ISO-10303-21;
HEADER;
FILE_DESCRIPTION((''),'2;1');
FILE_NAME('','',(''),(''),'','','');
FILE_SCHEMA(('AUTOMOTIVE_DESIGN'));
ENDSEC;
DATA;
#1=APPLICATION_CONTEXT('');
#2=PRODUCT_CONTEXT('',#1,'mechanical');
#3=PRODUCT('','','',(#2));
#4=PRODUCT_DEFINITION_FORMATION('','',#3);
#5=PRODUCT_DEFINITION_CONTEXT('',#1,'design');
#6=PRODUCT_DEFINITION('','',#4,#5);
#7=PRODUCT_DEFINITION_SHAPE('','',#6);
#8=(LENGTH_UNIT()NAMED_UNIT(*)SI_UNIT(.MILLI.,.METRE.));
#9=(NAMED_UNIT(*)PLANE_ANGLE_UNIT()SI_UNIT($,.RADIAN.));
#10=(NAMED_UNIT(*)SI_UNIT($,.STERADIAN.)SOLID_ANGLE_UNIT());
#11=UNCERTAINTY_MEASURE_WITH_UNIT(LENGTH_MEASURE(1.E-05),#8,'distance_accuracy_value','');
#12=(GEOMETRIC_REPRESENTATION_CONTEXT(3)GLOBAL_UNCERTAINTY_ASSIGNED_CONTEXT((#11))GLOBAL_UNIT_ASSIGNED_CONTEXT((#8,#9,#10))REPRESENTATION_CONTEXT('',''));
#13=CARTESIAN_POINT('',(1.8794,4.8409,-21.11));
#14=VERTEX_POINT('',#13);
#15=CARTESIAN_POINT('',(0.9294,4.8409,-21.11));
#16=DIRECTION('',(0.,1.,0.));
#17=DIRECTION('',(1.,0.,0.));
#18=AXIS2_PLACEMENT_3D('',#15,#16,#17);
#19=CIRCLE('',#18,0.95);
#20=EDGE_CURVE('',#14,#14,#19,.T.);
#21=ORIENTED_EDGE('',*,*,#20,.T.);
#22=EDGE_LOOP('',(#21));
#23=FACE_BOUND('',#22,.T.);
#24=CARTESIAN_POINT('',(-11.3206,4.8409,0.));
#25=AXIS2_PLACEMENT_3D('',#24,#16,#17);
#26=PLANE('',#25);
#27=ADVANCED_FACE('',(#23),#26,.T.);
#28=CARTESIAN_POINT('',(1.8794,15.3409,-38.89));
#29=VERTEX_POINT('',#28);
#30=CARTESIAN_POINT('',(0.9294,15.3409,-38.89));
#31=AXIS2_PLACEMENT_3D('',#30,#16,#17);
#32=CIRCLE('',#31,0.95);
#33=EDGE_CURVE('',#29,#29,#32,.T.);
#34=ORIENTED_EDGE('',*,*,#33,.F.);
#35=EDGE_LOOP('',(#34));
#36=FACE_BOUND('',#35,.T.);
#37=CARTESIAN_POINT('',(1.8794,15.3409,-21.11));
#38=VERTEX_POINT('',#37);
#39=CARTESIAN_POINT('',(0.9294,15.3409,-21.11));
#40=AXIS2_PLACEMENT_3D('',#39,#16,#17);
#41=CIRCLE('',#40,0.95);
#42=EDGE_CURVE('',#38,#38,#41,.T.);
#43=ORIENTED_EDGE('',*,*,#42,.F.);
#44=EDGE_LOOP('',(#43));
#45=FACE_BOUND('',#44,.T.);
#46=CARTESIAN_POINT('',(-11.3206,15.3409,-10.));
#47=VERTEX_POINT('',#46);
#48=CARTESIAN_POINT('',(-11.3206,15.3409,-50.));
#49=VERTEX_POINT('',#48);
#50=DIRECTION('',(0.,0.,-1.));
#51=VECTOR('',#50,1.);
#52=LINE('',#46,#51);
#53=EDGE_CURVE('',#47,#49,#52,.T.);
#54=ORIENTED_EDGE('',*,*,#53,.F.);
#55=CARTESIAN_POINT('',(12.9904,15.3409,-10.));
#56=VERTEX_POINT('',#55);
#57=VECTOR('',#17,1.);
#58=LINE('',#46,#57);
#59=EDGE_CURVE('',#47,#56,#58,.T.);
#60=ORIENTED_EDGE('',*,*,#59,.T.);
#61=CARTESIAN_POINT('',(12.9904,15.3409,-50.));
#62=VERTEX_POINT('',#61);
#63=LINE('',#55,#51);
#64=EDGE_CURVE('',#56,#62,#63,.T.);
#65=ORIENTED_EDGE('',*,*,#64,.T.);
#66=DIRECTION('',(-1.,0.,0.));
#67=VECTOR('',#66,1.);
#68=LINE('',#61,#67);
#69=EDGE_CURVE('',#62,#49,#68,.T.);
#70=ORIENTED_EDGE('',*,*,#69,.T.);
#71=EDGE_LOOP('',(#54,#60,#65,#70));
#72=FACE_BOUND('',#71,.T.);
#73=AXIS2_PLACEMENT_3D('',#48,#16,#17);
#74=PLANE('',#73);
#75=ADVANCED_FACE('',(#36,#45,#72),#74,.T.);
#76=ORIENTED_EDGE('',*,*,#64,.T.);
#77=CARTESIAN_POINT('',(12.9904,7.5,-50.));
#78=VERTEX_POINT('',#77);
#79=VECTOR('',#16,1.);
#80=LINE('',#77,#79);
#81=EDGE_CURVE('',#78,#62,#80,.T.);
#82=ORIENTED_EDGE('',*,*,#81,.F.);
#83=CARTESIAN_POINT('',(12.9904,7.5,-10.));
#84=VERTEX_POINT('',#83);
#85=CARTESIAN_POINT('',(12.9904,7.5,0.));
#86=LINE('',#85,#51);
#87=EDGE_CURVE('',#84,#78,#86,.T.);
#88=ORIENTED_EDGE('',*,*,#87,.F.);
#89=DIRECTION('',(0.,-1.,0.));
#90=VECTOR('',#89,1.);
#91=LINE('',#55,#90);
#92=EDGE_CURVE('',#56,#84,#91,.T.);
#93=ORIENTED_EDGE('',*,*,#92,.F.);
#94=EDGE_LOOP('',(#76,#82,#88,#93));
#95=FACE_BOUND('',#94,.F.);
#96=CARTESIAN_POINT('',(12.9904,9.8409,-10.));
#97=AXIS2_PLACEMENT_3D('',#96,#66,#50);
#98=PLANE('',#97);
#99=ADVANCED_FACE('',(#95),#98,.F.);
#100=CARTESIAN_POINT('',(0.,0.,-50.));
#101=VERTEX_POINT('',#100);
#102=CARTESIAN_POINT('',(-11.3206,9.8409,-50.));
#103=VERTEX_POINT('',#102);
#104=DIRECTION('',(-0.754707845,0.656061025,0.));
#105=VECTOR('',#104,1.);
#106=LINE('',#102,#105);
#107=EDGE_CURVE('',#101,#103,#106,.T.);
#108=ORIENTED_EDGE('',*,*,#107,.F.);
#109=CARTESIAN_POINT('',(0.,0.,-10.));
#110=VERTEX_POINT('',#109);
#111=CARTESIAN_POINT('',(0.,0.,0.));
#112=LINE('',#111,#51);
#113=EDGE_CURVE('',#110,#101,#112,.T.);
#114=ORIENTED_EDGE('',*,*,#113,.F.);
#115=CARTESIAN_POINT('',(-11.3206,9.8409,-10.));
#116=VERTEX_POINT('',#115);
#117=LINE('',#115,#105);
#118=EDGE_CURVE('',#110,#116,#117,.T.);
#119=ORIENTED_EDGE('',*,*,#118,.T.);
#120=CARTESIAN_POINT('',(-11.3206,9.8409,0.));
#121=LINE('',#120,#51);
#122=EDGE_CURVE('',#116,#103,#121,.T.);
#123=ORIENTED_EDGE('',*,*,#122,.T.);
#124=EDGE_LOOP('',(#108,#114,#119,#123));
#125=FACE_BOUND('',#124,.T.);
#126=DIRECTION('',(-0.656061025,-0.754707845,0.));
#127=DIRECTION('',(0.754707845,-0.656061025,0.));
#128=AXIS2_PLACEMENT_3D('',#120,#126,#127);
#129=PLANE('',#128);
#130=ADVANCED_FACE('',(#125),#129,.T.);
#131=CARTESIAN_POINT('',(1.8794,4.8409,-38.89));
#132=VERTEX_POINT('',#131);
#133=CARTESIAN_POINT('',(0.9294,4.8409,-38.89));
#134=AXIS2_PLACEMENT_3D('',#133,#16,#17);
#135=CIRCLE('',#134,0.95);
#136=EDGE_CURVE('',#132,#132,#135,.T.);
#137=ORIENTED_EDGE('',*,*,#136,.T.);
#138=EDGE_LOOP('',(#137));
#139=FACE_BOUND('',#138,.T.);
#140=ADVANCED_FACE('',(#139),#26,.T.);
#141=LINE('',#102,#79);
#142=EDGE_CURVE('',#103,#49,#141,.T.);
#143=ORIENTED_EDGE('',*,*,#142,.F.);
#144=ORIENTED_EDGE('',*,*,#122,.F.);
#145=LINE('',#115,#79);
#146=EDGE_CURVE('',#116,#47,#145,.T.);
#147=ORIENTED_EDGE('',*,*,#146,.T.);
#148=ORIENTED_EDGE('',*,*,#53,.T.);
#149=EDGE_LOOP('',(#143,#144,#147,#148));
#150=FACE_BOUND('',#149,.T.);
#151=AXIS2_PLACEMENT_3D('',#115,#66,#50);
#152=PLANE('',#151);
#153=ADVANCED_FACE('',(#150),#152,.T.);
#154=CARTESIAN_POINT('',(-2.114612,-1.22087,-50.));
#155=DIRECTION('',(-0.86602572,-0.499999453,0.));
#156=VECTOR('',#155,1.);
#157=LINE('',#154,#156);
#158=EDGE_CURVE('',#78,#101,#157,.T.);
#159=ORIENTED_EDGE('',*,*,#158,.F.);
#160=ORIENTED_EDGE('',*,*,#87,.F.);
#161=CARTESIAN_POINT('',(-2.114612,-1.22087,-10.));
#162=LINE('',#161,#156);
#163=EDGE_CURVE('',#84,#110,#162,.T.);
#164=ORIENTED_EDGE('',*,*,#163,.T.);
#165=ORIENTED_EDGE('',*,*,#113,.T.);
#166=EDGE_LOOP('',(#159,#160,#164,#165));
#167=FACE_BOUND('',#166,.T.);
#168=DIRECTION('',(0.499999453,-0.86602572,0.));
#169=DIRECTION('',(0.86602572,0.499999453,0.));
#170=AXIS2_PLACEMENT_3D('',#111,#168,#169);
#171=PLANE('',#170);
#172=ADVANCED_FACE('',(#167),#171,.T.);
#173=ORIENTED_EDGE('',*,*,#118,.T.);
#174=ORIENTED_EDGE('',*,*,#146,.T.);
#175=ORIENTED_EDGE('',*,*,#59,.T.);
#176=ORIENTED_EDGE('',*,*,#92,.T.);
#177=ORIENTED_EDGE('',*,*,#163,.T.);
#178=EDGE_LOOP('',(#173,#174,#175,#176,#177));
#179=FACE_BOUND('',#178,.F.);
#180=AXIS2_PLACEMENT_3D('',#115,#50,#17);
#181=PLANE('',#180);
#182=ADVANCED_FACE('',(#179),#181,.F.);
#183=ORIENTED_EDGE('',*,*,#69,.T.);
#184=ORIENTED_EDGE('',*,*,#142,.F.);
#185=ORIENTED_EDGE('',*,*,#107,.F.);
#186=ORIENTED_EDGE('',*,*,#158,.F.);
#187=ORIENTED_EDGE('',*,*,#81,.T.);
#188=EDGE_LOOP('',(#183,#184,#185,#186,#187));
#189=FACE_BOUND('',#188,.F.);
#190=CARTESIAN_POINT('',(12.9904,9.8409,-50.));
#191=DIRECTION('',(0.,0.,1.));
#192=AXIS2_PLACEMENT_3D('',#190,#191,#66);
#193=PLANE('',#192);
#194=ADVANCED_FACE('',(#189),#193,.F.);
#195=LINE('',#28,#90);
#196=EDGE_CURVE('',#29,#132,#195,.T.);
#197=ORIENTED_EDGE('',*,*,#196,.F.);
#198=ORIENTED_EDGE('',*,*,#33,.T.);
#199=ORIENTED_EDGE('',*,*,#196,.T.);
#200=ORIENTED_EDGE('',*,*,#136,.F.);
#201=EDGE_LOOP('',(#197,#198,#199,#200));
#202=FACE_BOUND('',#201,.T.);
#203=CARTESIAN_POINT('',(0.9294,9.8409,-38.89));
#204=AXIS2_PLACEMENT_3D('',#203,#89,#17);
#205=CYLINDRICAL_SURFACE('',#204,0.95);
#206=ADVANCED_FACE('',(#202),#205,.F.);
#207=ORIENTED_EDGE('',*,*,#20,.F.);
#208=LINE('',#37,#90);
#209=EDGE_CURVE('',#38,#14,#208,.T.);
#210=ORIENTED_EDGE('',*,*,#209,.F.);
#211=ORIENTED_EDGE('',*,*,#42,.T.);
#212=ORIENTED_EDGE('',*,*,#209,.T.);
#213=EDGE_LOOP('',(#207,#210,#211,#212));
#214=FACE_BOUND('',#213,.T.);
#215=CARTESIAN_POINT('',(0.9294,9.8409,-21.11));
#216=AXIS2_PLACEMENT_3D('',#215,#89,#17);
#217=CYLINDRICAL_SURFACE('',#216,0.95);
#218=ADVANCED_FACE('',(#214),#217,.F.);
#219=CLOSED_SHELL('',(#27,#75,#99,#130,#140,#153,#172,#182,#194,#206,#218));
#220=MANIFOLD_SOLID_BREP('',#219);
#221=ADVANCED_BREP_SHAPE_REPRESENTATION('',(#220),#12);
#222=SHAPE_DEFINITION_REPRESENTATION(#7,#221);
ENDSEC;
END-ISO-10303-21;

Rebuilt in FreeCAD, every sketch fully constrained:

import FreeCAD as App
import Part
import Sketcher
Q = App.Units.Quantity


def add_polygon(sketch, points):
    """Adds a closed chain of lines whose ends are joined by coincident constraints."""
    first, n = sketch.GeometryCount, len(points)
    for a, b in zip(points, points[1:] + points[:1]):
        sketch.addGeometry(Part.LineSegment(App.Vector(*a, 0), App.Vector(*b, 0)), False)
    for i in range(n):
        sketch.addConstraint(Sketcher.Constraint("Coincident", first + i, 2, first + (i + 1) % n, 1))

doc = App.newDocument("Part")
body = doc.addObject("PartDesign::Body", "Body")

sketch1 = doc.addObject("Sketcher::SketchObject", "Sketch")
body.addObject(sketch1)
sketch1.AttachmentSupport = (doc.XY_Plane, [""])
sketch1.MapMode = "FlatFace"
add_polygon(sketch1, [(13, 8), (-11, 10), (0, 0)])
sketch1.addConstraint(Sketcher.Constraint("Coincident", 1, 2, -1, 1))
sketch1.addConstraint(Sketcher.Constraint("Equal", 1, 2))
sketch1.addConstraint(Sketcher.Constraint("Angle", 2, Q("30 deg")))
sketch1.addConstraint(Sketcher.Constraint("Distance", 1, Q("15 mm")))
sketch1.addConstraint(Sketcher.Constraint("Angle", 1, Q("-41.0002 deg")))
pad1 = doc.addObject("PartDesign::Pad", "Pad")
body.addObject(pad1)
pad1.Profile = sketch1
pad1.Length = 60
pad1.Reversed = True

sketch2 = doc.addObject("Sketcher::SketchObject", "Sketch001")
body.addObject(sketch2)
sketch2.AttachmentSupport = (doc.XY_Plane, [""])
sketch2.MapMode = "FlatFace"
add_polygon(sketch2, [(13, 9.8), (-11.3, 9.8), (13, 7.5)])
sketch2.addConstraint(Sketcher.Constraint("Horizontal", 0))
sketch2.addConstraint(Sketcher.Constraint("Vertical", 2))
sketch2.addConstraint(Sketcher.Constraint("Angle", 1, Q("-5.5 deg")))
sketch2.addConstraint(Sketcher.Constraint("DistanceY", -1, 1, 1, 2, Q("7.5 mm")))
sketch2.addConstraint(Sketcher.Constraint("DistanceX", 0, 2, 0, 1, Q("24.311 mm")))
sketch2.addConstraint(Sketcher.Constraint("DistanceX", 0, 2, -1, 1, Q("11.3206 mm")))
pad2 = doc.addObject("PartDesign::Pad", "Pad001")
body.addObject(pad2)
pad2.Profile = sketch2
pad2.Length = 60
pad2.Reversed = True

sketch3 = doc.addObject("Sketcher::SketchObject", "Sketch002")
body.addObject(sketch3)
sketch3.AttachmentSupport = (doc.XZ_Plane, [""])
sketch3.MapMode = "FlatFace"
sketch3.AttachmentOffset = App.Placement(App.Vector(0, 0, -9.8409), App.Rotation())
sketch3.addGeometry(Part.Circle(App.Vector(0.9, -21.1, 0), App.Vector(0, 0, 1), 0.9), False)
sketch3.addGeometry(Part.Circle(App.Vector(0.9, -38.9, 0), App.Vector(0, 0, 1), 0.9), False)
sketch3.addConstraint(Sketcher.Constraint("Equal", 0, 1))
sketch3.addConstraint(Sketcher.Constraint("Vertical", 0, 3, 1, 3))
sketch3.addConstraint(Sketcher.Constraint("Diameter", 0, Q("1.9 mm")))
sketch3.addConstraint(Sketcher.Constraint("DistanceY", 0, 3, -1, 1, Q("21.11 mm")))
sketch3.addConstraint(Sketcher.Constraint("DistanceY", 1, 3, -1, 1, Q("38.89 mm")))
sketch3.addConstraint(Sketcher.Constraint("DistanceX", -1, 1, 0, 3, Q("0.9294 mm")))
pocket1 = doc.addObject("PartDesign::Pocket", "Pocket")
body.addObject(pocket1)
pocket1.Profile = sketch3
pocket1.Length = 5
pocket1.Reversed = True

sketch4 = doc.addObject("Sketcher::SketchObject", "Sketch003")
body.addObject(sketch4)
sketch4.AttachmentSupport = (doc.XZ_Plane, [""])
sketch4.MapMode = "FlatFace"
sketch4.AttachmentOffset = App.Placement(App.Vector(0, 0, -9.8409), App.Rotation())
add_polygon(sketch4, [(-11, -50), (13, -50), (13, -60), (-11, -60)])
add_polygon(sketch4, [(-11, -10), (-11, 0), (13, 0), (13, -10)])
sketch4.addConstraint(Sketcher.Constraint("Horizontal", 0))
sketch4.addConstraint(Sketcher.Constraint("Vertical", 1))
sketch4.addConstraint(Sketcher.Constraint("Horizontal", 2))
sketch4.addConstraint(Sketcher.Constraint("Vertical", 3))
sketch4.addConstraint(Sketcher.Constraint("Vertical", 4))
sketch4.addConstraint(Sketcher.Constraint("Horizontal", 5))
sketch4.addConstraint(Sketcher.Constraint("Vertical", 6))
sketch4.addConstraint(Sketcher.Constraint("Horizontal", 7))
sketch4.addConstraint(Sketcher.Constraint("PointOnObject", 4, 2, -1))
sketch4.addConstraint(Sketcher.Constraint("Vertical", 3, 2, 4, 2))
sketch4.addConstraint(Sketcher.Constraint("Vertical", 1, 2, 5, 2))
sketch4.addConstraint(Sketcher.Constraint("Equal", 3, 4))
sketch4.addConstraint(Sketcher.Constraint("DistanceY", 1, 2, 1, 1, Q("10 mm")))
sketch4.addConstraint(Sketcher.Constraint("DistanceY", 0, 2, -1, 1, Q("50 mm")))
sketch4.addConstraint(Sketcher.Constraint("DistanceX", 0, 1, 0, 2, Q("24.311 mm")))
sketch4.addConstraint(Sketcher.Constraint("DistanceX", -1, 1, 0, 2, Q("12.9904 mm")))
pocket2 = doc.addObject("PartDesign::Pocket", "Pocket001")
body.addObject(pocket2)
pocket2.Profile = sketch4
pocket2.Length = 20
pocket2.Reversed = True

sketch5 = doc.addObject("Sketcher::SketchObject", "Sketch004")
body.addObject(sketch5)
sketch5.AttachmentSupport = (doc.XZ_Plane, [""])
sketch5.MapMode = "FlatFace"
sketch5.AttachmentOffset = App.Placement(App.Vector(0, 0, -9.8409), App.Rotation())
add_polygon(sketch5, [(13, -10), (13, -50), (-11.3, -50), (-11.3, -10)])
sketch5.addGeometry(Part.Circle(App.Vector(0.9, -21.1, 0), App.Vector(0, 0, 1), 0.9), False)
sketch5.addGeometry(Part.Circle(App.Vector(0.9, -38.9, 0), App.Vector(0, 0, 1), 0.9), False)
sketch5.addConstraint(Sketcher.Constraint("Vertical", 0))
sketch5.addConstraint(Sketcher.Constraint("Horizontal", 1))
sketch5.addConstraint(Sketcher.Constraint("Vertical", 2))
sketch5.addConstraint(Sketcher.Constraint("Horizontal", 3))
sketch5.addConstraint(Sketcher.Constraint("Equal", 4, 5))
sketch5.addConstraint(Sketcher.Constraint("Vertical", 4, 3, 5, 3))
sketch5.addConstraint(Sketcher.Constraint("Diameter", 4, Q("1.9 mm")))
sketch5.addConstraint(Sketcher.Constraint("DistanceY", 0, 2, 0, 1, Q("40 mm")))
sketch5.addConstraint(Sketcher.Constraint("DistanceY", 0, 2, -1, 1, Q("50 mm")))
sketch5.addConstraint(Sketcher.Constraint("DistanceX", 1, 2, 1, 1, Q("24.311 mm")))
sketch5.addConstraint(Sketcher.Constraint("DistanceY", 4, 3, -1, 1, Q("21.11 mm")))
sketch5.addConstraint(Sketcher.Constraint("DistanceY", 5, 3, -1, 1, Q("38.89 mm")))
sketch5.addConstraint(Sketcher.Constraint("DistanceX", 1, 2, 5, 3, Q("12.25 mm")))
sketch5.addConstraint(Sketcher.Constraint("DistanceX", -1, 1, 4, 3, Q("0.9294 mm")))
pad3 = doc.addObject("PartDesign::Pad", "Pad002")
body.addObject(pad3)
pad3.Profile = sketch5
pad3.Length = 5.5
pad3.Reversed = True

doc.recompute()
